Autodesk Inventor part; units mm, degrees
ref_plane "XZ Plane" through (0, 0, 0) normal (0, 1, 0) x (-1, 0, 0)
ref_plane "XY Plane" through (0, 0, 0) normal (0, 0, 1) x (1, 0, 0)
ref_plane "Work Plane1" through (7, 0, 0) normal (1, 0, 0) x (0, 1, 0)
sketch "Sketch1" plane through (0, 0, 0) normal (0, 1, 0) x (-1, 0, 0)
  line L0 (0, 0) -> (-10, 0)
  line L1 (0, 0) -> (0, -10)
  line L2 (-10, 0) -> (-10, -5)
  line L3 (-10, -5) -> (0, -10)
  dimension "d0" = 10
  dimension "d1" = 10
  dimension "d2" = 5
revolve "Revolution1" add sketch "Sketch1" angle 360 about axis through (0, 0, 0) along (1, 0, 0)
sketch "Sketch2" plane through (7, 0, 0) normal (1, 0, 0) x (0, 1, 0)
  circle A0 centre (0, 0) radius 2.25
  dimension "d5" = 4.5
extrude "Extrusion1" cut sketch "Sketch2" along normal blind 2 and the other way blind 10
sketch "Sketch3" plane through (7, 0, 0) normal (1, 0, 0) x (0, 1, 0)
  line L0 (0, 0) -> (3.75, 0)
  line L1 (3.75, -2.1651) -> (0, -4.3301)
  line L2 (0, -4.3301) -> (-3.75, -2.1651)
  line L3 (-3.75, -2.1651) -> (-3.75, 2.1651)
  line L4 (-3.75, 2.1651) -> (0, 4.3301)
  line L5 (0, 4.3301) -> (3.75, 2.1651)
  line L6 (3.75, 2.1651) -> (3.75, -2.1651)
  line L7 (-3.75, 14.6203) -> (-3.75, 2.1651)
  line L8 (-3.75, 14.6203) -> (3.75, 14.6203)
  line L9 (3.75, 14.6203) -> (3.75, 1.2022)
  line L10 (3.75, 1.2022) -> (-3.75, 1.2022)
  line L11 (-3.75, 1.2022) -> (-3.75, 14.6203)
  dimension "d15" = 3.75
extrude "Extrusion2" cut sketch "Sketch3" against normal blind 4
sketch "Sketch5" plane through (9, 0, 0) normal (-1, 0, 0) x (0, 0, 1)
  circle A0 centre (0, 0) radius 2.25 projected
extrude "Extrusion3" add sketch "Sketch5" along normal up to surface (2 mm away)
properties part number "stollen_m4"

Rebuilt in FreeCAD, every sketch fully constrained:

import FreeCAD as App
import Part
import Sketcher

V = App.Vector
Q = App.Units.Quantity

doc = App.newDocument("Part")
params = doc.addObject("Spreadsheet::Sheet", "Params")
for row, (alias, value) in enumerate([
    ("sketch1_width", "10 mm"),
    ("sketch1_height", "5 mm"),
    ("revolution_angle", "360 deg"),
    ("sketch2_diameter", "4.5 mm"),
    ("pocket1_length", "2 mm"),
    ("pocket1_length2", "10 mm"),
    ("pocket2_length", "4 mm"),
    ("sketch4_diameter", "4.5 mm"),
    ("pad1_length", "2 mm"),
], start=1):
    params.set(f"A{row}", alias)
    params.set(f"B{row}", "=" + value)
    params.setAlias(f"B{row}", alias)

body = doc.addObject("PartDesign::Body", "Body")

# Sketch on XZ plane
sketch1 = body.newObject("Sketcher::SketchObject", "Sketch")
sketch1.AttachmentSupport = (doc.getObject("XZ_Plane"), [""])
sketch1.MapMode = "FlatFace"
sketch1.addGeometry(Part.LineSegment(V(0, -10, 0), V(0, 0, 0)), False)
sketch1.addGeometry(Part.LineSegment(V(0, 0, 0), V(10, 0, 0)), False)
sketch1.addGeometry(Part.LineSegment(V(10, 0, 0), V(10, -5, 0)), False)
sketch1.addGeometry(Part.LineSegment(V(10, -5, 0), V(0, -10, 0)), False)
sketch1.addConstraint(Sketcher.Constraint("Coincident", 0, 2, 1, 1))
sketch1.addConstraint(Sketcher.Constraint("Coincident", 1, 2, 2, 1))
sketch1.addConstraint(Sketcher.Constraint("Coincident", 2, 2, 3, 1))
sketch1.addConstraint(Sketcher.Constraint("Coincident", 3, 2, 0, 1))
sketch1.addConstraint(Sketcher.Constraint("Vertical", 0))
sketch1.addConstraint(Sketcher.Constraint("Horizontal", 1))
sketch1.addConstraint(Sketcher.Constraint("Vertical", 2))
sketch1.addConstraint(Sketcher.Constraint("Coincident", 0, 2, -1, 1))
sketch1.addConstraint(Sketcher.Constraint("Equal", 1, 0))
sketch1.addConstraint(Sketcher.Constraint("DistanceX", 1, 1, 1, 2, 10.0))
sketch1.addConstraint(Sketcher.Constraint("DistanceY", 2, 2, 2, 1, 5.0))
sketch1.setExpression("Constraints[9]", "Params.sketch1_width")
sketch1.setExpression("Constraints[10]", "Params.sketch1_height")
revolution = body.newObject("PartDesign::Revolution", "Revolution")
revolution.Profile = sketch1
revolution.ReferenceAxis = (sketch1, ["H_Axis"])
revolution.setExpression("Angle", "Params.revolution_angle")

# Sketch on YZ plane
sketch2 = body.newObject("Sketcher::SketchObject", "Sketch001")
sketch2.AttachmentSupport = (doc.getObject("YZ_Plane"), [""])
sketch2.MapMode = "FlatFace"
sketch2.AttachmentOffset = App.Placement(V(0, 0, 7), App.Rotation())
sketch2.addGeometry(Part.Circle(V(0, 0, 0), V(0, 0, 1), 2.2), False)
sketch2.addConstraint(Sketcher.Constraint("Coincident", 0, 3, -1, 1))
sketch2.addConstraint(Sketcher.Constraint("Diameter", 0, 4.5))
sketch2.setExpression("Constraints[1]", "Params.sketch2_diameter")
pocket1 = body.newObject("PartDesign::Pocket", "Pocket")
pocket1.Profile = sketch2
pocket1.Type = "TwoLengths"
pocket1.setExpression("Length", "Params.pocket1_length")
pocket1.setExpression("Length2", "Params.pocket1_length2")
pocket1.Reversed = True

# Sketch on YZ plane
sketch3 = body.newObject("Sketcher::SketchObject", "Sketch002")
sketch3.AttachmentSupport = (doc.getObject("YZ_Plane"), [""])
sketch3.MapMode = "FlatFace"
sketch3.AttachmentOffset = App.Placement(V(0, 0, 7), App.Rotation())
sketch3.addGeometry(Part.LineSegment(V(0, -4.3, 0), V(3.8, -2.2, 0)), False)
sketch3.addGeometry(Part.LineSegment(V(3.8, -2.2, 0), V(3.8, 14.6, 0)), False)
sketch3.addGeometry(Part.LineSegment(V(3.8, 14.6, 0), V(-3.8, 14.6, 0)), False)
sketch3.addGeometry(Part.LineSegment(V(-3.8, 14.6, 0), V(-3.8, -2.2, 0)), False)
sketch3.addGeometry(Part.LineSegment(V(-3.8, -2.2, 0), V(0, -4.3, 0)), False)
sketch3.addConstraint(Sketcher.Constraint("Coincident", 0, 2, 1, 1))
sketch3.addConstraint(Sketcher.Constraint("Coincident", 1, 2, 2, 1))
sketch3.addConstraint(Sketcher.Constraint("Coincident", 2, 2, 3, 1))
sketch3.addConstraint(Sketcher.Constraint("Coincident", 3, 2, 4, 1))
sketch3.addConstraint(Sketcher.Constraint("Coincident", 4, 2, 0, 1))
sketch3.addConstraint(Sketcher.Constraint("Vertical", 1))
sketch3.addConstraint(Sketcher.Constraint("Horizontal", 2))
sketch3.addConstraint(Sketcher.Constraint("Vertical", 3))
sketch3.addConstraint(Sketcher.Constraint("Symmetric", 0, 2, 3, 2, -2))
sketch3.addConstraint(Sketcher.Constraint("PointOnObject", 4, 2, -2))
sketch3.addConstraint(Sketcher.Constraint("DistanceX", -1, 1, 0, 2, 3.75))
sketch3.addConstraint(Sketcher.Constraint("Angle", 0, Q("29.9993 deg")))
sketch3.addConstraint(Sketcher.Constraint("DistanceY", 4, 2, -1, 1, 4.33))
sketch3.addConstraint(Sketcher.Constraint("DistanceY", 1, 1, 1, 2, 16.7854))
pocket2 = body.newObject("PartDesign::Pocket", "Pocket001")
pocket2.Profile = sketch3
pocket2.setExpression("Length", "Params.pocket2_length")

# Sketch on YZ plane
sketch4 = body.newObject("Sketcher::SketchObject", "Sketch003")
sketch4.AttachmentSupport = (doc.getObject("YZ_Plane"), [""])
sketch4.MapMode = "FlatFace"
sketch4.AttachmentOffset = App.Placement(V(0, 0, 9), App.Rotation())
sketch4.addGeometry(Part.Circle(V(0, 0, 0), V(0, 0, 1), 2.2), False)
sketch4.addConstraint(Sketcher.Constraint("Coincident", 0, 3, -1, 1))
sketch4.addConstraint(Sketcher.Constraint("Diameter", 0, 4.5))
sketch4.setExpression("Constraints[1]", "Params.sketch4_diameter")
pad1 = body.newObject("PartDesign::Pad", "Pad")
pad1.Profile = sketch4
pad1.setExpression("Length", "Params.pad1_length")
pad1.Reversed = True

doc.recompute()
